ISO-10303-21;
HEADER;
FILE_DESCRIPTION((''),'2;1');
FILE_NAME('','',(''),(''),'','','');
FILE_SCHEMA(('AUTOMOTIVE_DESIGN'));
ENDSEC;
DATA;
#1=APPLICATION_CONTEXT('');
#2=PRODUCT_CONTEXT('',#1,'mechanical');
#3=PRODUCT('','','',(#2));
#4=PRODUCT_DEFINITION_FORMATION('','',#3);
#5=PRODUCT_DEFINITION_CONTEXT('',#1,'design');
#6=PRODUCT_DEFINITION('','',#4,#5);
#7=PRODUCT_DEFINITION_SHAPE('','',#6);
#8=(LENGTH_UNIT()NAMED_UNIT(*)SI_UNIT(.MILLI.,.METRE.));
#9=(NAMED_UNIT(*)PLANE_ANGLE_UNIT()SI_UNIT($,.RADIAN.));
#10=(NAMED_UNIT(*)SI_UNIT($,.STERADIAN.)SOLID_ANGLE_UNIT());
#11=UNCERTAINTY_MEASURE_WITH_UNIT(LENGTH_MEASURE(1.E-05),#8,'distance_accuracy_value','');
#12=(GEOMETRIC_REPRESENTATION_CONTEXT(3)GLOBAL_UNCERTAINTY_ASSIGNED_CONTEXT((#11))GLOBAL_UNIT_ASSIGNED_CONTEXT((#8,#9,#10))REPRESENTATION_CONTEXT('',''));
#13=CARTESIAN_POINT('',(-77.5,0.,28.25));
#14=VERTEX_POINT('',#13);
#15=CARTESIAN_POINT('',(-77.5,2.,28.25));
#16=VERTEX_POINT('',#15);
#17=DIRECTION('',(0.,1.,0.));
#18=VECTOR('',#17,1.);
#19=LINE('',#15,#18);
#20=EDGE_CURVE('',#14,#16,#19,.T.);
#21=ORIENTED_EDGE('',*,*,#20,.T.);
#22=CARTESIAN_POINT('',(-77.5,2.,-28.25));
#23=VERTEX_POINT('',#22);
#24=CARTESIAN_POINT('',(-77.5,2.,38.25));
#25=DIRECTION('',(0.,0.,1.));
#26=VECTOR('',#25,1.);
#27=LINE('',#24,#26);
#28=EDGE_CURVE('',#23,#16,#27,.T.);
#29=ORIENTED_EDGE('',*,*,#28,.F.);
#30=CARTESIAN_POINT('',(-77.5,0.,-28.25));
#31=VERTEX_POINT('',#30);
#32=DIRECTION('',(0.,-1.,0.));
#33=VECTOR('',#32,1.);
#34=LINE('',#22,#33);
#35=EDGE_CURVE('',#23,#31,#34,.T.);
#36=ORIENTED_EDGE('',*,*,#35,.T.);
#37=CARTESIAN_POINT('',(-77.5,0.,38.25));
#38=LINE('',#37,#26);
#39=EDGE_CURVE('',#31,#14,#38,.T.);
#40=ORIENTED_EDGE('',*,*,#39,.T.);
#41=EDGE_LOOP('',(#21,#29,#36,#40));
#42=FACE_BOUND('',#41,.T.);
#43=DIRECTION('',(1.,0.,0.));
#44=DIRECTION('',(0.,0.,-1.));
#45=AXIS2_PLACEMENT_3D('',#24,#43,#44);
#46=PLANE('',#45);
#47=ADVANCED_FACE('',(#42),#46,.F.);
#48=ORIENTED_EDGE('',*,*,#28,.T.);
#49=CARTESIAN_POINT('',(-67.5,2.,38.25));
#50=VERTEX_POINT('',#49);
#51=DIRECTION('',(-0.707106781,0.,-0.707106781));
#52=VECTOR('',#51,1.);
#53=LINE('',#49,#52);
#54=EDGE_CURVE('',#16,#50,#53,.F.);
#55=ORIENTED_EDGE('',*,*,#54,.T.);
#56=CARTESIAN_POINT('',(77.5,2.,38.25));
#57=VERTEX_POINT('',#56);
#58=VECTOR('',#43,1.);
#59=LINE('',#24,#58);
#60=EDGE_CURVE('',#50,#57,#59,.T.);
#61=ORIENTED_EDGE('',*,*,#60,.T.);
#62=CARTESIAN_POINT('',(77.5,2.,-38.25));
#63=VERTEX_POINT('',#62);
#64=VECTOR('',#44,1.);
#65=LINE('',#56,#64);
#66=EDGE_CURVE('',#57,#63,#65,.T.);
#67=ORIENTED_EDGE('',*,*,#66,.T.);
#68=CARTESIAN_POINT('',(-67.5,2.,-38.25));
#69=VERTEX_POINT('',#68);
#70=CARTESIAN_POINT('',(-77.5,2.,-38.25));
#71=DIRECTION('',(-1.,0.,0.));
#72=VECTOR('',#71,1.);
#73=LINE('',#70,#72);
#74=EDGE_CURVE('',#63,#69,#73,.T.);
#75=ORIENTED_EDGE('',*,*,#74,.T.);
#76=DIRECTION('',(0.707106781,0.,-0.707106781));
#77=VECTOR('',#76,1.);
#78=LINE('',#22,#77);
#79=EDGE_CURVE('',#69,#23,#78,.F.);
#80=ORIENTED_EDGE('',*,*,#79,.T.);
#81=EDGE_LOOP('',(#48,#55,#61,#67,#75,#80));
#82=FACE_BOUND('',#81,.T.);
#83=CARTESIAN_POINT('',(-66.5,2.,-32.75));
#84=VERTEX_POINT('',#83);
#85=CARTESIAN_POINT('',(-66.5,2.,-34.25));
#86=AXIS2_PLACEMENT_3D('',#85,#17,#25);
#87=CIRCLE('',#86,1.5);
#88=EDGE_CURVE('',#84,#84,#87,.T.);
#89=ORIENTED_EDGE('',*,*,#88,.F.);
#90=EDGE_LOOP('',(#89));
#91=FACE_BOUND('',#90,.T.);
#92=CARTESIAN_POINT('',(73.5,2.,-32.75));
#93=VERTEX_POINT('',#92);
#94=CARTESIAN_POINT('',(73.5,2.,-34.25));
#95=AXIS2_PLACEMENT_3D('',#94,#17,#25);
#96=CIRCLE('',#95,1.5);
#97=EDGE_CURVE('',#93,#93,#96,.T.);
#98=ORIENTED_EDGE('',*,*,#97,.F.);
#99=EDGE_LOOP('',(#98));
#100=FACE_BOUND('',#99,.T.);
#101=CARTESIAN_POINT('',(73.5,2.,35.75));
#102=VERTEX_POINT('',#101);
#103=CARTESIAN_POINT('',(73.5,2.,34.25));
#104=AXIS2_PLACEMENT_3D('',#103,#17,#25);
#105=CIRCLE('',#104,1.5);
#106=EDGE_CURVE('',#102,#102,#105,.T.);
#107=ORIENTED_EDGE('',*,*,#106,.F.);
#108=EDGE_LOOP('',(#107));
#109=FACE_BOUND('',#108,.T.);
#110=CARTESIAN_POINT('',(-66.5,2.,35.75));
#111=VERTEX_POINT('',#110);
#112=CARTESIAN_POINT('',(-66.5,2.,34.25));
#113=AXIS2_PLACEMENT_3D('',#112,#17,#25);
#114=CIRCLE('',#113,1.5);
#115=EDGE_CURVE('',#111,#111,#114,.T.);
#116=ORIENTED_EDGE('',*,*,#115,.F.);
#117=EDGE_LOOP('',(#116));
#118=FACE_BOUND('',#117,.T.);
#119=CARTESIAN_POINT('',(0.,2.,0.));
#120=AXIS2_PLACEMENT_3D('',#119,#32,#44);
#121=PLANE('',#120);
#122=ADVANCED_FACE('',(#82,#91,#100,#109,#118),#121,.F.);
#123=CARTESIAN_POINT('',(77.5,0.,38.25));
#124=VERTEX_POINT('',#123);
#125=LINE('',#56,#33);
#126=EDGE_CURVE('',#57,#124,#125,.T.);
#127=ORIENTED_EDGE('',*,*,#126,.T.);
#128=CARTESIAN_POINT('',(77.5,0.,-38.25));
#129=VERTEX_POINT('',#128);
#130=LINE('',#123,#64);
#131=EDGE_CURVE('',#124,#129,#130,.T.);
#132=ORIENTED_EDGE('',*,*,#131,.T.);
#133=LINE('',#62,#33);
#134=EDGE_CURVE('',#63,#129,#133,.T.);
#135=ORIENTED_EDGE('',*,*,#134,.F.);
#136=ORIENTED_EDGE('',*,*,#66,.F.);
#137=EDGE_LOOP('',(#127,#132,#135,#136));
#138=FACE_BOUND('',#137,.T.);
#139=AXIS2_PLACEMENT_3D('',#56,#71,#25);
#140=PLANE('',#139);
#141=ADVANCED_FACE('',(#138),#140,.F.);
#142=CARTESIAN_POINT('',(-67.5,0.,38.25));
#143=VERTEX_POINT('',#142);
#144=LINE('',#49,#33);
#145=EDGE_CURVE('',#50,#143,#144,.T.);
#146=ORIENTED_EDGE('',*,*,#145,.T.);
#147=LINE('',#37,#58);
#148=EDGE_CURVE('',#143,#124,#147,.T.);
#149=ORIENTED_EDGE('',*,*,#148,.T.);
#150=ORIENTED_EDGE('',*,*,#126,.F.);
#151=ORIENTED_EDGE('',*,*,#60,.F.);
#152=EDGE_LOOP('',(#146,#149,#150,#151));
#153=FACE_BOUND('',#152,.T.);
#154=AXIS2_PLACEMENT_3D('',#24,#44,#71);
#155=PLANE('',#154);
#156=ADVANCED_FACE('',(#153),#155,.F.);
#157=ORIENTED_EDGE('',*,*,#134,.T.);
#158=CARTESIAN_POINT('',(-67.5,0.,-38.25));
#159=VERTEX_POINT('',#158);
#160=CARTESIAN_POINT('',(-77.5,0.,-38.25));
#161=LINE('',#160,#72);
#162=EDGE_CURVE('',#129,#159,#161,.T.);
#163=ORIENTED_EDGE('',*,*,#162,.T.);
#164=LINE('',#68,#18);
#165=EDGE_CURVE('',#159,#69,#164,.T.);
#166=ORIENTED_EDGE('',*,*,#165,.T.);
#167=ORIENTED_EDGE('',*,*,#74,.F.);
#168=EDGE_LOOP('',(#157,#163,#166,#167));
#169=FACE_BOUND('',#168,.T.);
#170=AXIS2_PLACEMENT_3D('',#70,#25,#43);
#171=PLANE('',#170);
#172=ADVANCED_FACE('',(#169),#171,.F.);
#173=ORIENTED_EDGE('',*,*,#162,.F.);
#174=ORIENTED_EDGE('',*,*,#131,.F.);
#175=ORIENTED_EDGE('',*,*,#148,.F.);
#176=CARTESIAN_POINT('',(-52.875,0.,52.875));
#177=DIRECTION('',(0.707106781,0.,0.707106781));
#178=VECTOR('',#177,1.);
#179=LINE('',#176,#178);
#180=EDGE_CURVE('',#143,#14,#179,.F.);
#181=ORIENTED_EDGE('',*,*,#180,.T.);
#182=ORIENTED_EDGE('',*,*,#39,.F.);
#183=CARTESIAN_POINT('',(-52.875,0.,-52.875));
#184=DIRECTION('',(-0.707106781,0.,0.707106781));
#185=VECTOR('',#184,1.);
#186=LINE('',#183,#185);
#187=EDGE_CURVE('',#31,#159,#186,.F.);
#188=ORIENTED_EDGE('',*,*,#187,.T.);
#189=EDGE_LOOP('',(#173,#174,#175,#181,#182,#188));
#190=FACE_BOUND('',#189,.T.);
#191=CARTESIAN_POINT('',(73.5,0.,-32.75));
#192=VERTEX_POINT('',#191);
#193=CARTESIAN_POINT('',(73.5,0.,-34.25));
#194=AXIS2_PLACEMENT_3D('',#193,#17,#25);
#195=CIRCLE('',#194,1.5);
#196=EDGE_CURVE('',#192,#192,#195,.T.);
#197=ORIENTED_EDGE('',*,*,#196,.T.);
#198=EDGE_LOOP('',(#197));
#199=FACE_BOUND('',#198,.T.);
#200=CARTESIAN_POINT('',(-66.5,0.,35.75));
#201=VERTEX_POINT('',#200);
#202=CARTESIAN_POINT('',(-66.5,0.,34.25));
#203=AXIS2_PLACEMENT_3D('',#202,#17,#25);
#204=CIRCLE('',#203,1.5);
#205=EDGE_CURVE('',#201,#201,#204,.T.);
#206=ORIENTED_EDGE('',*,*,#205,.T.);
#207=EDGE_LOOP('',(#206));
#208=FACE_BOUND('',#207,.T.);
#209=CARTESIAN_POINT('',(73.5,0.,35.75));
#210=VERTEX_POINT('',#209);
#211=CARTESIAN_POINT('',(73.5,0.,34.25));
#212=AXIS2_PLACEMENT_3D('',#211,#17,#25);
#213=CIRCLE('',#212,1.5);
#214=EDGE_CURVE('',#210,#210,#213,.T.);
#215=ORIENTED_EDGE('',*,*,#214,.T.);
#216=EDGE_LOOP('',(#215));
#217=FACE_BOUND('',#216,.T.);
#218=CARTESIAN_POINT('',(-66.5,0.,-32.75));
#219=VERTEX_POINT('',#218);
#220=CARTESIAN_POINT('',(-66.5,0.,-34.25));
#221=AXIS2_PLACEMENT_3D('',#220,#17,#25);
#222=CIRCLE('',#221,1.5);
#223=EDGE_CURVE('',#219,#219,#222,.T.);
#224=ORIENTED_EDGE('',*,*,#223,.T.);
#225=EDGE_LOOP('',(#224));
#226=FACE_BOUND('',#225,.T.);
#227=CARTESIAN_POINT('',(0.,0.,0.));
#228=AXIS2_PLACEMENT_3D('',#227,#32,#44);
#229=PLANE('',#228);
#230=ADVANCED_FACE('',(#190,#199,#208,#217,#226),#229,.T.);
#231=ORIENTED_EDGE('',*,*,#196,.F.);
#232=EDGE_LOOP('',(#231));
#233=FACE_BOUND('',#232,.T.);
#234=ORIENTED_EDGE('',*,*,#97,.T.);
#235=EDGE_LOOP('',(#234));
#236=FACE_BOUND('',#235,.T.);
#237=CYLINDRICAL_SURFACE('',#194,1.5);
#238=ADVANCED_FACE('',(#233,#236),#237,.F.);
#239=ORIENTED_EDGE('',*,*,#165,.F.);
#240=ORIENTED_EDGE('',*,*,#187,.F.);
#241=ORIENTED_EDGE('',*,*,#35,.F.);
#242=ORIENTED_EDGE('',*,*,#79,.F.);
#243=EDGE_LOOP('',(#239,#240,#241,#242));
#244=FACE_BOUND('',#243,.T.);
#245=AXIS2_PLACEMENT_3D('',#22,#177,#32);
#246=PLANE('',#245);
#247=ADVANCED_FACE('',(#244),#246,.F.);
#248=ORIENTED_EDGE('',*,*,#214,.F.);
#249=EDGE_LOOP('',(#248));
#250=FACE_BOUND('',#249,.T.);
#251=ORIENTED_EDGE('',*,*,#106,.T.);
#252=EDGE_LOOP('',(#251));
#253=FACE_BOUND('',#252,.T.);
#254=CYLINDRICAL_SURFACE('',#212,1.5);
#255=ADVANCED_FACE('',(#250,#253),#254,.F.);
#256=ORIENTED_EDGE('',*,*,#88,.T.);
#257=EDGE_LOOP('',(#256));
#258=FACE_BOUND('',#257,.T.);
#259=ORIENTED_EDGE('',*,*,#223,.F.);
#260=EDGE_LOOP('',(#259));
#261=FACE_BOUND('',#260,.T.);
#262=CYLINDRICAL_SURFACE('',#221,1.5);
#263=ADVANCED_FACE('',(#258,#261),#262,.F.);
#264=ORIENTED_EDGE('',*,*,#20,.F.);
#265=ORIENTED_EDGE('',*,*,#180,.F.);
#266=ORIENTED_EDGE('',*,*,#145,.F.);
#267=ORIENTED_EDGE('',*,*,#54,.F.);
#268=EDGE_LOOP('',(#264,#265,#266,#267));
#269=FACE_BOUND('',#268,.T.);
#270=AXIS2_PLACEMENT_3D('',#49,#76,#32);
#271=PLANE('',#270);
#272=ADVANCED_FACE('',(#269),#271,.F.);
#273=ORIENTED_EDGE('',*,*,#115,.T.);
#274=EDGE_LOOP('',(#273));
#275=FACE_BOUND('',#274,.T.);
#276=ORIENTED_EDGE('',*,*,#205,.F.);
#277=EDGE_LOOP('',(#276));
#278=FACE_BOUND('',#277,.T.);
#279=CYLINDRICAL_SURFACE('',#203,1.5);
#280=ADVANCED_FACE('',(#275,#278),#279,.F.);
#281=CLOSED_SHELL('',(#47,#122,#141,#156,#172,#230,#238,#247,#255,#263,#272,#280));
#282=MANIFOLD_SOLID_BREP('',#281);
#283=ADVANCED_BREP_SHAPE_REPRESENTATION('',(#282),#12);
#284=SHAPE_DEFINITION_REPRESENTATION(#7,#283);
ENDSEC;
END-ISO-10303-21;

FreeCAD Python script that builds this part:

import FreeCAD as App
import Part
import Sketcher

V = App.Vector


def edges_at(feature, points):
    """Names of the edges that pass closest to the given points."""
    edges = feature.Shape.Edges
    near = lambda p: min(range(len(edges)), key=lambda i: edges[i].distToShape(Part.Vertex(*p))[0])
    return sorted({f"Edge{near(p) + 1}" for p in points})


def add_polygon(sketch, points):
    """Adds a closed chain of lines whose ends are joined by coincident constraints."""
    first, n = sketch.GeometryCount, len(points)
    for a, b in zip(points, points[1:] + points[:1]):
        sketch.addGeometry(Part.LineSegment(App.Vector(*a, 0), App.Vector(*b, 0)), False)
    for i in range(n):
        sketch.addConstraint(Sketcher.Constraint("Coincident", first + i, 2, first + (i + 1) % n, 1))

doc = App.newDocument("Part")
body = doc.addObject("PartDesign::Body", "Body")

# Sketch on XZ plane
sketch1 = body.newObject("Sketcher::SketchObject", "Sketch")
sketch1.AttachmentSupport = (doc.getObject("XZ_Plane"), [""])
sketch1.MapMode = "FlatFace"
add_polygon(sketch1, [(-78, -38), (-78, 38), (78, 38), (78, -38)])  # lines 0-3
sketch1.addConstraint([
    Sketcher.Constraint("Vertical", 0),
    Sketcher.Constraint("Horizontal", 1),
    Sketcher.Constraint("Vertical", 2),
    Sketcher.Constraint("Horizontal", 3),
    Sketcher.Constraint("Symmetric", 0, 2, 2, 2, -1, 1),
    Sketcher.Constraint("DistanceX", 1, 1, 1, 2, 155.0),
    Sketcher.Constraint("DistanceY", 0, 1, 0, 2, 76.5),
])
pad1 = body.newObject("PartDesign::Pad", "Pad")
pad1.Profile = sketch1
pad1.Length = 2
pad1.Reversed = True

# Sketch on XZ plane
sketch2 = body.newObject("Sketcher::SketchObject", "Sketch001")
sketch2.AttachmentSupport = (doc.getObject("XZ_Plane"), [""])
sketch2.MapMode = "FlatFace"
sketch2.AttachmentOffset = App.Placement(V(0, 0, -2), App.Rotation())
sketch2.addGeometry([
    Part.Circle(V(73.5, -34.2, 0), V(0, 0, 1), 1.5),
    Part.Circle(V(73.5, 34.2, 0), V(0, 0, 1), 1.5),
    Part.Circle(V(-66.5, 34.2, 0), V(0, 0, 1), 1.5),
    Part.Circle(V(-66.5, -34.2, 0), V(0, 0, 1), 1.5),
], False)
sketch2.addConstraint([
    Sketcher.Constraint("Equal", 0, 1),
    Sketcher.Constraint("Equal", 1, 2),
    Sketcher.Constraint("Equal", 2, 3),
    Sketcher.Constraint("Symmetric", 0, 3, 1, 3, -1),
    Sketcher.Constraint("Symmetric", 2, 3, 3, 3, -1),
    Sketcher.Constraint("Horizontal", 1, 3, 2, 3),
    Sketcher.Constraint("Diameter", 0, 3.0),
    Sketcher.Constraint("DistanceX", 2, 3, 1, 3, 140.0),
    Sketcher.Constraint("DistanceX", -1, 1, 0, 3, 73.5),
    Sketcher.Constraint("DistanceY", 0, 3, 1, 3, 68.5),
])
pocket1 = body.newObject("PartDesign::Pocket", "Pocket")
pocket1.Profile = sketch2
pocket1.Type = "ThroughAll"
pocket1.Reversed = True
doc.recompute()

chamfer = body.newObject("PartDesign::Chamfer", "Chamfer")
chamfer.Base = (pocket1, edges_at(pocket1, [(-77.5, 1, 38.25), (-77.5, 1, -38.25)]))
chamfer.Size = 10

doc.recompute()
